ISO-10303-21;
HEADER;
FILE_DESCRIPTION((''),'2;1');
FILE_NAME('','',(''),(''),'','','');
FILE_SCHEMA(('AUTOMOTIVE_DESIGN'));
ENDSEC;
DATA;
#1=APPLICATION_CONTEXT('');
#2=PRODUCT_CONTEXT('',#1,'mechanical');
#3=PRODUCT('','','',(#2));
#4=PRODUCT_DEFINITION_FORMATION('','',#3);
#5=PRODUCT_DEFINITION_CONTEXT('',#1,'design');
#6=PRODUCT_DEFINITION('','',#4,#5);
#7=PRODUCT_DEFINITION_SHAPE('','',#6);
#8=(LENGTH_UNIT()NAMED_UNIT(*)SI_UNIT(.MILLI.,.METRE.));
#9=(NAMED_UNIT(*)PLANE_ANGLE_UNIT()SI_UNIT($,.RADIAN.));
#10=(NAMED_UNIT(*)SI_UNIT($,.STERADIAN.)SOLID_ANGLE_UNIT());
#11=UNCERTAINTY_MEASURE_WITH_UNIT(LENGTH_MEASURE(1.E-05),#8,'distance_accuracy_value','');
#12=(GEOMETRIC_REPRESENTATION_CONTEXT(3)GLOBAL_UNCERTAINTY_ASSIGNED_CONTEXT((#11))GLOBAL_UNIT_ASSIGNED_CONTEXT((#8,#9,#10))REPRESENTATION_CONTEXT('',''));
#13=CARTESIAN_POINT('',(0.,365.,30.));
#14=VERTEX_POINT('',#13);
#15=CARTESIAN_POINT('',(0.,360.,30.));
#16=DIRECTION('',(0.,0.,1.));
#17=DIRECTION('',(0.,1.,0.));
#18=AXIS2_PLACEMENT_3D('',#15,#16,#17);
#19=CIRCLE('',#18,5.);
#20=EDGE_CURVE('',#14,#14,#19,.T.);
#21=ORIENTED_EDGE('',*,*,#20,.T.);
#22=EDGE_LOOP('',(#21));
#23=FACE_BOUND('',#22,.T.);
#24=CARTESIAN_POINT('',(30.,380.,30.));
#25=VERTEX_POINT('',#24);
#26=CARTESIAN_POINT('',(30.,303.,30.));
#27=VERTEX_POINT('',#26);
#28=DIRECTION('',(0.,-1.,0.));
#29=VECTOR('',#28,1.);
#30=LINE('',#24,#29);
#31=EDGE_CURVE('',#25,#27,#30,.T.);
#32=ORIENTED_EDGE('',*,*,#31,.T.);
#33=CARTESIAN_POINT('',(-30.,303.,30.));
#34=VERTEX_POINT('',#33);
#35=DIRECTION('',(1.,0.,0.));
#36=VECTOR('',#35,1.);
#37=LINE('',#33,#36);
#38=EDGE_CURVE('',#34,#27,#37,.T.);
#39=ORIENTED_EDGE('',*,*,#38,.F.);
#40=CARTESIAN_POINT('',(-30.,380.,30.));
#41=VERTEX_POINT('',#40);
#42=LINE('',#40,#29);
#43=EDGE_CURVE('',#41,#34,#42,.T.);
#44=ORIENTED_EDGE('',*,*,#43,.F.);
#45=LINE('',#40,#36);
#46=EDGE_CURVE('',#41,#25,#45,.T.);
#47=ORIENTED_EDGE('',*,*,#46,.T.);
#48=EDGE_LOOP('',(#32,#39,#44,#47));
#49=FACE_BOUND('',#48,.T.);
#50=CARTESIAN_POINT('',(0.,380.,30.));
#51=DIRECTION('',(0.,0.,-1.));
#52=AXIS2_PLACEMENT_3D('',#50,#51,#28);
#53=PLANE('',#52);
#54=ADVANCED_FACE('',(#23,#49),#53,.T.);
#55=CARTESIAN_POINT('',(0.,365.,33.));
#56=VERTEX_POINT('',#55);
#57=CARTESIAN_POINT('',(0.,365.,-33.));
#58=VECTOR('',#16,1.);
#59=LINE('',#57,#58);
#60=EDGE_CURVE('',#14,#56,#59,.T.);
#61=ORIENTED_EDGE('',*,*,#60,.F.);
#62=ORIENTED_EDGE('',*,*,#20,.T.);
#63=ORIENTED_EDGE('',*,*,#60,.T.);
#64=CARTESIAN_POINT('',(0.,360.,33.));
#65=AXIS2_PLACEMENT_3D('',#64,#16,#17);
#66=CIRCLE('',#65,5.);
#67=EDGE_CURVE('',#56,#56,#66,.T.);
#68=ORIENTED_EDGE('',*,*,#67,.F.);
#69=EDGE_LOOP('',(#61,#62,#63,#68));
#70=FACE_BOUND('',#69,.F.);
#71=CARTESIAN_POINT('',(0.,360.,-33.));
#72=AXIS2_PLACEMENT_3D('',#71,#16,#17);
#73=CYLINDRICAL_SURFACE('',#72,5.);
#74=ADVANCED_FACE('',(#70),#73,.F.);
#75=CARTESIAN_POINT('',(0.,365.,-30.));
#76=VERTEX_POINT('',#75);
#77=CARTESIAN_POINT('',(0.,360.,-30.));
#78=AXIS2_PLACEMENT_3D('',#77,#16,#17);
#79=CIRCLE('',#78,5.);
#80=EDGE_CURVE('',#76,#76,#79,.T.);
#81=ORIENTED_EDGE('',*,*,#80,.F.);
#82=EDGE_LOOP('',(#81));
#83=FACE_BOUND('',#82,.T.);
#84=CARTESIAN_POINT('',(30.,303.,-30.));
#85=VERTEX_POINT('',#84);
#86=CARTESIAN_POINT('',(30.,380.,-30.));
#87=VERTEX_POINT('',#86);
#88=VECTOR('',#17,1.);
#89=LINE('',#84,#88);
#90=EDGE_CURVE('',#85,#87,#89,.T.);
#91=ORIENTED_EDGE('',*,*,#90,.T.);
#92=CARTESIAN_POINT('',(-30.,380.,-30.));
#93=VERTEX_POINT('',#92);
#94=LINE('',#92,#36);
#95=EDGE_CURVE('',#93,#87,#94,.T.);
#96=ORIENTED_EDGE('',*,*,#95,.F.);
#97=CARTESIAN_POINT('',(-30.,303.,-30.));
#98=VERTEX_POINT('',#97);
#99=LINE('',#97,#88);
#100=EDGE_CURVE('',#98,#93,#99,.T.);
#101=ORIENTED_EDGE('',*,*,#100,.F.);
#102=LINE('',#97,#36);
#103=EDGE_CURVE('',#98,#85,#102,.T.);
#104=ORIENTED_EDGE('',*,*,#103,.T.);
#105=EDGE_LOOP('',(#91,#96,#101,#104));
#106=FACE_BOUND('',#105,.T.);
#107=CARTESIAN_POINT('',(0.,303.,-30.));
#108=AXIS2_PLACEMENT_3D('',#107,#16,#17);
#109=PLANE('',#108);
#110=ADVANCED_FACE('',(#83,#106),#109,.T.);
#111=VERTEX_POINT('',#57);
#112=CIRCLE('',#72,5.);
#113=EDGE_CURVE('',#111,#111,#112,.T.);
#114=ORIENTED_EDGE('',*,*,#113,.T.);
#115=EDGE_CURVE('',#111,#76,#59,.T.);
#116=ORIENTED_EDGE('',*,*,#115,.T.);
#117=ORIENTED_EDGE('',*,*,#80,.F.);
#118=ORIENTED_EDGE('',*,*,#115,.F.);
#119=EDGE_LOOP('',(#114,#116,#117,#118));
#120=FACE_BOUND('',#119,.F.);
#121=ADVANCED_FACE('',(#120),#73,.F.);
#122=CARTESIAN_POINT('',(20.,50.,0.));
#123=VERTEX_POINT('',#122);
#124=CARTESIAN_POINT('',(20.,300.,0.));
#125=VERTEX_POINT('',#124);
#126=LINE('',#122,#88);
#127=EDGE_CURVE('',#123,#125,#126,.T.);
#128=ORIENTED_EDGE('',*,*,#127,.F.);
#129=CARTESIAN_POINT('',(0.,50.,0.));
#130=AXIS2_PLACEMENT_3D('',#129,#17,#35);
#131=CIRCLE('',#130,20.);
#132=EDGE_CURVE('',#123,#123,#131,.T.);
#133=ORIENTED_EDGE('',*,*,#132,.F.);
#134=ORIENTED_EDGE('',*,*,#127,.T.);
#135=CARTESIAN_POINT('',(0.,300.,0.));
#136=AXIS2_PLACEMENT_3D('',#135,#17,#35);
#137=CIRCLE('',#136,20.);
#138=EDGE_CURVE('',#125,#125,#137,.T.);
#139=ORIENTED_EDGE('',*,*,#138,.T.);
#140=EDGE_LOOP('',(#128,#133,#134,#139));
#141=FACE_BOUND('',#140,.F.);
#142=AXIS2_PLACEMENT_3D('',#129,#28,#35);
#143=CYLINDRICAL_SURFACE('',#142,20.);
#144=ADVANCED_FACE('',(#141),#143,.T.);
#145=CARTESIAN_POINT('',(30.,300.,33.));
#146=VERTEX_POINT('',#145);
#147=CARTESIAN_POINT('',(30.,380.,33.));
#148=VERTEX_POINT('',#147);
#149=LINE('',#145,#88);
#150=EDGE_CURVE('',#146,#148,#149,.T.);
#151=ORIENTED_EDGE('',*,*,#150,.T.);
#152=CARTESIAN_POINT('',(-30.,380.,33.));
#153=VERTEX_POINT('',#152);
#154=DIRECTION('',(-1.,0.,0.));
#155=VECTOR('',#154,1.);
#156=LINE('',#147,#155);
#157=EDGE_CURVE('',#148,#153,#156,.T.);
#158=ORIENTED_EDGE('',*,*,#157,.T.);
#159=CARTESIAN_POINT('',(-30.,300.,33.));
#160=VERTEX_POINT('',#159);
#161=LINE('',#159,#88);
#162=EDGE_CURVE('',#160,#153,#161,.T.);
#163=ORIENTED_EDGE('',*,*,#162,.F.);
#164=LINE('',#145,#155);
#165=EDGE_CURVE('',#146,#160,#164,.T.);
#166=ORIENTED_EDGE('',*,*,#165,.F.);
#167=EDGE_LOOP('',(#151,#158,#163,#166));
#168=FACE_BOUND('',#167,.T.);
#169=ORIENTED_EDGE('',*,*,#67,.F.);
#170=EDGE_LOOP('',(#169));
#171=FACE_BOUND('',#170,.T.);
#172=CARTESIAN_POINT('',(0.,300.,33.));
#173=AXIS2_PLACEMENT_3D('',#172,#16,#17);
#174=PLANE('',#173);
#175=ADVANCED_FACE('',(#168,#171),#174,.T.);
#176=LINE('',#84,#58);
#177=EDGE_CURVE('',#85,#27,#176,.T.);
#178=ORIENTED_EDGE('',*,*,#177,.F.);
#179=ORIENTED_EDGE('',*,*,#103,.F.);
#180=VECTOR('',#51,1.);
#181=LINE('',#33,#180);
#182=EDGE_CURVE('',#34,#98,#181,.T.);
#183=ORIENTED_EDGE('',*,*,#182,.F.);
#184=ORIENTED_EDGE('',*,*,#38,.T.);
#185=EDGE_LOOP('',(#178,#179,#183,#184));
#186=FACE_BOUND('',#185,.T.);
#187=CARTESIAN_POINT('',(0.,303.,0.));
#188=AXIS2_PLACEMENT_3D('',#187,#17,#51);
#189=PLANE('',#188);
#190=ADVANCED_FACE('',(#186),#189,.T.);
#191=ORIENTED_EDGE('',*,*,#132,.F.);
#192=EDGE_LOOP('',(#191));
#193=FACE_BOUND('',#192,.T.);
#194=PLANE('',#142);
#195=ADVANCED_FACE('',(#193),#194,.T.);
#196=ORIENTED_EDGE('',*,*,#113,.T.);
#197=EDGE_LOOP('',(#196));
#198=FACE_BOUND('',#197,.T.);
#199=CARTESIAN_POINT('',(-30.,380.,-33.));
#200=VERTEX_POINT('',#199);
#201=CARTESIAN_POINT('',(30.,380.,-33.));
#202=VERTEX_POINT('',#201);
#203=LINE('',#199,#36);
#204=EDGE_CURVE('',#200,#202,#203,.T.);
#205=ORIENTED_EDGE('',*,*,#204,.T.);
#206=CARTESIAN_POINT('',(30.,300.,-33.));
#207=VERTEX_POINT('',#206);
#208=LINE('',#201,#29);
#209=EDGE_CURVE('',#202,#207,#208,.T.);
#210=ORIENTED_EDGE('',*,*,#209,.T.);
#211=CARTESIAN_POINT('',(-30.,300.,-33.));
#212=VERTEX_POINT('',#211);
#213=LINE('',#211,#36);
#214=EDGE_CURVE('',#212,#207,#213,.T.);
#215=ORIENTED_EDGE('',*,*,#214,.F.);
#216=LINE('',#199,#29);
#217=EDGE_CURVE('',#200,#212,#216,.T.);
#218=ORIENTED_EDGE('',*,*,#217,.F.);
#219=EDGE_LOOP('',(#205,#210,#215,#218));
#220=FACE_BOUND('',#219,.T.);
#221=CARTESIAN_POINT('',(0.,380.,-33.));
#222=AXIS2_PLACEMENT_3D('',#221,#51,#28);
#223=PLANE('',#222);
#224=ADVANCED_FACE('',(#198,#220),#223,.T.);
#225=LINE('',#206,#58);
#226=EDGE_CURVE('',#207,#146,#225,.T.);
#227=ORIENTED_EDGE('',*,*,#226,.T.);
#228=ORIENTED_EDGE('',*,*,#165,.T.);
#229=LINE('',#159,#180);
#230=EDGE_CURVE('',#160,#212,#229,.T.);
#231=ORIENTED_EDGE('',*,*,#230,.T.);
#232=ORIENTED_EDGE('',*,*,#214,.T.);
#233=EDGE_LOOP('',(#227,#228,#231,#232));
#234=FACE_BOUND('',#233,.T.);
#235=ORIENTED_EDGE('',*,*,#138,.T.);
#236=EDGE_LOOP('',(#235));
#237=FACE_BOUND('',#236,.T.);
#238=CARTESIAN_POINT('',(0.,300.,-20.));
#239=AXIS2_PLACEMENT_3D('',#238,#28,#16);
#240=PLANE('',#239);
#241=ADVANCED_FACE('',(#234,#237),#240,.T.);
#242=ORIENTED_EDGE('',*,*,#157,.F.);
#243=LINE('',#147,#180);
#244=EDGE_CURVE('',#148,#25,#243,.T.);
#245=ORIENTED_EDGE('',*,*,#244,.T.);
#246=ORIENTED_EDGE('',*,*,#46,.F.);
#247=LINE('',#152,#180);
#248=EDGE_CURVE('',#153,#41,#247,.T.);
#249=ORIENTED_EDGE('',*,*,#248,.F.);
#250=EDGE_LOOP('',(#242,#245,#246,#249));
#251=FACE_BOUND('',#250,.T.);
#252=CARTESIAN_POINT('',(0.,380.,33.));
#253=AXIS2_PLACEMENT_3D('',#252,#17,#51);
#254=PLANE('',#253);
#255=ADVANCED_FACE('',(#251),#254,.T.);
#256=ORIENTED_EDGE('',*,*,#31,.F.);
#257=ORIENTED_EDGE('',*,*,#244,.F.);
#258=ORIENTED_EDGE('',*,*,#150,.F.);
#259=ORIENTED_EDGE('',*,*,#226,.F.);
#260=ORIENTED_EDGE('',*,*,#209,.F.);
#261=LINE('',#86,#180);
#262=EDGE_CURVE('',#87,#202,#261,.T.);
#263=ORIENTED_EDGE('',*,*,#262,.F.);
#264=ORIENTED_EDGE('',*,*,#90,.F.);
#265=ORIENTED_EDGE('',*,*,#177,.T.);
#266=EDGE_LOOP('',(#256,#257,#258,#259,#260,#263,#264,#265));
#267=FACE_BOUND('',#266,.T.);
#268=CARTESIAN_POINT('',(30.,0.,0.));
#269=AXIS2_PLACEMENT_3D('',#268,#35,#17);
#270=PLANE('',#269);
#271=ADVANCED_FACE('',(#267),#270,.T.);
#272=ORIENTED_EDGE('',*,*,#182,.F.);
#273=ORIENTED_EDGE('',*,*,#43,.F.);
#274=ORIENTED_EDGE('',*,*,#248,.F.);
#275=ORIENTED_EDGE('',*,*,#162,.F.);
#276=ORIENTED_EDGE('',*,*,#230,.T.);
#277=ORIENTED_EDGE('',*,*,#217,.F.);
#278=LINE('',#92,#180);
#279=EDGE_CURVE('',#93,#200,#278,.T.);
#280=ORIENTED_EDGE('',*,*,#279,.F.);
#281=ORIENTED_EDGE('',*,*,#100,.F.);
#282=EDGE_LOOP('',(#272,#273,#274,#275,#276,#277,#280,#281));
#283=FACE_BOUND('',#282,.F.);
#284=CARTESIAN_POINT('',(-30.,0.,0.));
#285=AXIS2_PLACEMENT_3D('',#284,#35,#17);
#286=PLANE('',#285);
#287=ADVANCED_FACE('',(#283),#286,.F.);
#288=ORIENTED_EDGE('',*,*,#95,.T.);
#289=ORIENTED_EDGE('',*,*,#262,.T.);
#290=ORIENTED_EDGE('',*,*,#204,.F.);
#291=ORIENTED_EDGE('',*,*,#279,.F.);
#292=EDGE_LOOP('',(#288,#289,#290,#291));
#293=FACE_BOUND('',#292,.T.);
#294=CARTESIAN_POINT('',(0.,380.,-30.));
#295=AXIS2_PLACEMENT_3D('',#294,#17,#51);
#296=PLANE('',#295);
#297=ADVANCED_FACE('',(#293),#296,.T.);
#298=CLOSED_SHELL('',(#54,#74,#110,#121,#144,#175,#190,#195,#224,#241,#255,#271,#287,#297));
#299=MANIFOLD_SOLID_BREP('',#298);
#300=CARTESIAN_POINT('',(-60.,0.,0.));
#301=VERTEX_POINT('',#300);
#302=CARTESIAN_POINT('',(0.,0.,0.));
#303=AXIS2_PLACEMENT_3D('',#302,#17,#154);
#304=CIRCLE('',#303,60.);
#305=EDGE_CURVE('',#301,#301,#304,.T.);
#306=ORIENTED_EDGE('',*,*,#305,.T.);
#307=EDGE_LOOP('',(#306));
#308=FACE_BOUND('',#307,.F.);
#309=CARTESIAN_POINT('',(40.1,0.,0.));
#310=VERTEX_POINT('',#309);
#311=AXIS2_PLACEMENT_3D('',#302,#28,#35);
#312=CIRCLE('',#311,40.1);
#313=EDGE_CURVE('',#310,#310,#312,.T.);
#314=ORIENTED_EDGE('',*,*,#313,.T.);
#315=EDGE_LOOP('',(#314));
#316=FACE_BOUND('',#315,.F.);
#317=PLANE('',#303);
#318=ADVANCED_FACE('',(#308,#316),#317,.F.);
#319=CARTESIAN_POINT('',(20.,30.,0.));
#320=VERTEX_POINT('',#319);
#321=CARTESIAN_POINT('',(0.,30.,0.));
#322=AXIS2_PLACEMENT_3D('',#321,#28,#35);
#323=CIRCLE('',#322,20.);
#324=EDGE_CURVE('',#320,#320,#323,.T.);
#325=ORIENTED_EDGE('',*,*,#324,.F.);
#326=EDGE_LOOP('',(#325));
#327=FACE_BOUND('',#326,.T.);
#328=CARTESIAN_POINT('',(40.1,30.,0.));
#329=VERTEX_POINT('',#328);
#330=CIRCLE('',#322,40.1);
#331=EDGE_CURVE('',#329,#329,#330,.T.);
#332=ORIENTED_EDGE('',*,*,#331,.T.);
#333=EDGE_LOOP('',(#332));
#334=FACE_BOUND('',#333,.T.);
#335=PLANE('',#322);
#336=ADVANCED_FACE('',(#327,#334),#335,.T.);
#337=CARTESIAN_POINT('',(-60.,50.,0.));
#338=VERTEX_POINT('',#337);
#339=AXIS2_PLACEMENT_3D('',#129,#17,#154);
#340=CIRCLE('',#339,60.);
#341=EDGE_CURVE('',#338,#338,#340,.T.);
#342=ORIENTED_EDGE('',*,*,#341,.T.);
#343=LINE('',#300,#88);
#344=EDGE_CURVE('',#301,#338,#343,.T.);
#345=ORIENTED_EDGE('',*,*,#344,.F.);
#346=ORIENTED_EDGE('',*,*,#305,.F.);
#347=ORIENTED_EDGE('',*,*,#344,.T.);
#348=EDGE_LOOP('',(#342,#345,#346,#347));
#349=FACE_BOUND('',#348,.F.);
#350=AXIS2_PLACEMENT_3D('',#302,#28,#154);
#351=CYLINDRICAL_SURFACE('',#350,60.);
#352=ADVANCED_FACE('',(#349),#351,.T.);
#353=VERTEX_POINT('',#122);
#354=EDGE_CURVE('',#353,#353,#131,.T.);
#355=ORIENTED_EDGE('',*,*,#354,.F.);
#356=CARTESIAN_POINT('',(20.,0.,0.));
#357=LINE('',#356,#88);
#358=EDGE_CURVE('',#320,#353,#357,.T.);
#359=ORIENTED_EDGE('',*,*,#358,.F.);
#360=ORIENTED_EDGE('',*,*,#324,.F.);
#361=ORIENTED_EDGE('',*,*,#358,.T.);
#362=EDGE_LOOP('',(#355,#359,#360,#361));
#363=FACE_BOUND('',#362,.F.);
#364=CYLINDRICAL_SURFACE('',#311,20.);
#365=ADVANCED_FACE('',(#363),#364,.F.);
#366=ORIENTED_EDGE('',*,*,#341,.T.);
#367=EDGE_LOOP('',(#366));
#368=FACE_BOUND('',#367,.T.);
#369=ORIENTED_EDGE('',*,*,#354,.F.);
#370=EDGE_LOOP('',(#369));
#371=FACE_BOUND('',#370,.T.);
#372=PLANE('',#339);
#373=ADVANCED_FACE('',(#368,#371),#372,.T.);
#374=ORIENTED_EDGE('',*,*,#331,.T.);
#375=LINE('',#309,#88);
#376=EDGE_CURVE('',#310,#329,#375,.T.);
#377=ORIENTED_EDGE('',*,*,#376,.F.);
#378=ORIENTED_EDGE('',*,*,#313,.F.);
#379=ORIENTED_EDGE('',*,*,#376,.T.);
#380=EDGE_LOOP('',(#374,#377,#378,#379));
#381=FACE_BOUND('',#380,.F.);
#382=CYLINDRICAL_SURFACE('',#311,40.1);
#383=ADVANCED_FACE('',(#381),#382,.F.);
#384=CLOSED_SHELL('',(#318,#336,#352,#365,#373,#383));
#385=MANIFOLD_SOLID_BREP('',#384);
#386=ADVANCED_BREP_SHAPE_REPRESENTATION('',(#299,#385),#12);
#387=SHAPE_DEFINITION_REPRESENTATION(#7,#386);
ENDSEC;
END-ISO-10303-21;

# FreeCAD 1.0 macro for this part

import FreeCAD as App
import Part
import Sketcher
from FreeCAD import Vector
Q = App.Units.Quantity


def add_polygon(sketch, points):
    """Adds a closed chain of lines whose ends are joined by coincident constraints."""
    first, n = sketch.GeometryCount, len(points)
    for a, b in zip(points, points[1:] + points[:1]):
        sketch.addGeometry(Part.LineSegment(App.Vector(*a, 0), App.Vector(*b, 0)), False)
    for i in range(n):
        sketch.addConstraint(Sketcher.Constraint("Coincident", first + i, 2, first + (i + 1) % n, 1))

doc = App.newDocument("Part")
body = doc.addObject("PartDesign::Body", "Body")
body.AllowCompound = True

sketch1 = doc.addObject("Sketcher::SketchObject", "Sketch")
body.addObject(sketch1)
sketch1.AttachmentSupport = (doc.XZ_Plane, [""])
sketch1.MapMode = "FlatFace"
sketch1.addGeometry(Part.Circle(Vector(0, 0, 0), Vector(0, 0, 1), 60), False)
sketch1.addConstraint([
    Sketcher.Constraint("Coincident", 0, 3, -1, 1),
    Sketcher.Constraint("Diameter", 0, Q("120 mm")),
])
pad1 = doc.addObject("PartDesign::Pad", "Pad")
body.addObject(pad1)
pad1.Profile = sketch1
pad1.Length = 50
pad1.Reversed = True

sketch2 = doc.addObject("Sketcher::SketchObject", "Sketch001")
body.addObject(sketch2)
sketch2.AttachmentSupport = (doc.XZ_Plane, [""])
sketch2.MapMode = "FlatFace"
sketch2.AttachmentOffset = App.Placement(Vector(0, 0, -50), App.Rotation())
sketch2.addGeometry(Part.Circle(Vector(0, 0, 0), Vector(0, 0, 1), 20), False)
sketch2.addConstraint([
    Sketcher.Constraint("Coincident", 0, 3, -1, 1),
    Sketcher.Constraint("Diameter", 0, Q("40 mm")),
])
pad2 = doc.addObject("PartDesign::Pad", "Pad001")
body.addObject(pad2)
pad2.Profile = sketch2
pad2.Length = 250
pad2.Reversed = True

sketch3 = doc.addObject("Sketcher::SketchObject", "Sketch002")
body.addObject(sketch3)
sketch3.AttachmentSupport = (doc.XZ_Plane, [""])
sketch3.MapMode = "FlatFace"
sketch3.addGeometry(Part.Circle(Vector(0, 0, 0), Vector(0, 0, 1), 40.1), False)
sketch3.addConstraint([
    Sketcher.Constraint("Coincident", 0, 3, -1, 1),
    Sketcher.Constraint("Diameter", 0, Q("80.2 mm")),
])
pocket1 = doc.addObject("PartDesign::Pocket", "Pocket")
body.addObject(pocket1)
pocket1.Profile = sketch3
pocket1.Length = 30

sketch4 = doc.addObject("Sketcher::SketchObject", "Sketch003")
body.addObject(sketch4)
sketch4.AttachmentSupport = (doc.XZ_Plane, [""])
sketch4.MapMode = "FlatFace"
sketch4.addGeometry(Part.Circle(Vector(0, 0, 0), Vector(0, 0, 1), 20), False)
sketch4.addConstraint([
    Sketcher.Constraint("Coincident", 0, 3, -1, 1),
    Sketcher.Constraint("Diameter", 0, Q("40 mm")),
])
pocket2 = doc.addObject("PartDesign::Pocket", "Pocket001")
body.addObject(pocket2)
pocket2.Profile = sketch4
pocket2.Length = 50

sketch5 = doc.addObject("Sketcher::SketchObject", "Sketch004")
body.addObject(sketch5)
sketch5.AttachmentSupport = (doc.YZ_Plane, [""])
sketch5.MapMode = "FlatFace"
add_polygon(sketch5, [(300, -33), (380, -33), (380, -30), (303, -30), (303, 30), (380, 30), (380, 33), (300, 33)])
sketch5.addConstraint([
    Sketcher.Constraint("Horizontal", 0),
    Sketcher.Constraint("Vertical", 1),
    Sketcher.Constraint("Horizontal", 2),
    Sketcher.Constraint("Vertical", 3),
    Sketcher.Constraint("Horizontal", 4),
    Sketcher.Constraint("Vertical", 5),
    Sketcher.Constraint("Horizontal", 6),
    Sketcher.Constraint("Vertical", 7),
    Sketcher.Constraint("Symmetric", 1, 2, 4, 2, -1),
    Sketcher.Constraint("Equal", 1, 5),
    Sketcher.Constraint("DistanceX", 0, 1, 0, 2, Q("80 mm")),
    Sketcher.Constraint("DistanceY", 1, 1, 1, 2, Q("3 mm")),
    Sketcher.Constraint("DistanceY", 3, 1, 3, 2, Q("60 mm")),
    Sketcher.Constraint("DistanceX", 6, 2, 3, 2, Q("3 mm")),
    Sketcher.Constraint("DistanceX", -1, 1, 0, 2, Q("380 mm")),
])
pad3 = doc.addObject("PartDesign::Pad", "Pad002")
body.addObject(pad3)
pad3.Profile = sketch5
pad3.Length = 60
pad3.Midplane = True

sketch6 = doc.addObject("Sketcher::SketchObject", "Sketch005")
body.addObject(sketch6)
sketch6.AttachmentSupport = (doc.XY_Plane, [""])
sketch6.MapMode = "FlatFace"
sketch6.AttachmentOffset = App.Placement(Vector(0, 0, -33), App.Rotation())
sketch6.addGeometry(Part.Circle(Vector(0, 360, 0), Vector(0, 0, 1), 5), False)
sketch6.addConstraint([
    Sketcher.Constraint("PointOnObject", 0, 3, -2),
    Sketcher.Constraint("Diameter", 0, Q("10 mm")),
    Sketcher.Constraint("DistanceY", -1, 1, 0, 3, Q("360 mm")),
])
doc.recompute()
hole = doc.addObject("PartDesign::Hole", "Hole")
body.addObject(hole)
hole.Profile = sketch6
hole.ThreadType = "None"
hole.Diameter = 10
hole.DepthType = "ThroughAll"
hole.Reversed = True

doc.recompute()
